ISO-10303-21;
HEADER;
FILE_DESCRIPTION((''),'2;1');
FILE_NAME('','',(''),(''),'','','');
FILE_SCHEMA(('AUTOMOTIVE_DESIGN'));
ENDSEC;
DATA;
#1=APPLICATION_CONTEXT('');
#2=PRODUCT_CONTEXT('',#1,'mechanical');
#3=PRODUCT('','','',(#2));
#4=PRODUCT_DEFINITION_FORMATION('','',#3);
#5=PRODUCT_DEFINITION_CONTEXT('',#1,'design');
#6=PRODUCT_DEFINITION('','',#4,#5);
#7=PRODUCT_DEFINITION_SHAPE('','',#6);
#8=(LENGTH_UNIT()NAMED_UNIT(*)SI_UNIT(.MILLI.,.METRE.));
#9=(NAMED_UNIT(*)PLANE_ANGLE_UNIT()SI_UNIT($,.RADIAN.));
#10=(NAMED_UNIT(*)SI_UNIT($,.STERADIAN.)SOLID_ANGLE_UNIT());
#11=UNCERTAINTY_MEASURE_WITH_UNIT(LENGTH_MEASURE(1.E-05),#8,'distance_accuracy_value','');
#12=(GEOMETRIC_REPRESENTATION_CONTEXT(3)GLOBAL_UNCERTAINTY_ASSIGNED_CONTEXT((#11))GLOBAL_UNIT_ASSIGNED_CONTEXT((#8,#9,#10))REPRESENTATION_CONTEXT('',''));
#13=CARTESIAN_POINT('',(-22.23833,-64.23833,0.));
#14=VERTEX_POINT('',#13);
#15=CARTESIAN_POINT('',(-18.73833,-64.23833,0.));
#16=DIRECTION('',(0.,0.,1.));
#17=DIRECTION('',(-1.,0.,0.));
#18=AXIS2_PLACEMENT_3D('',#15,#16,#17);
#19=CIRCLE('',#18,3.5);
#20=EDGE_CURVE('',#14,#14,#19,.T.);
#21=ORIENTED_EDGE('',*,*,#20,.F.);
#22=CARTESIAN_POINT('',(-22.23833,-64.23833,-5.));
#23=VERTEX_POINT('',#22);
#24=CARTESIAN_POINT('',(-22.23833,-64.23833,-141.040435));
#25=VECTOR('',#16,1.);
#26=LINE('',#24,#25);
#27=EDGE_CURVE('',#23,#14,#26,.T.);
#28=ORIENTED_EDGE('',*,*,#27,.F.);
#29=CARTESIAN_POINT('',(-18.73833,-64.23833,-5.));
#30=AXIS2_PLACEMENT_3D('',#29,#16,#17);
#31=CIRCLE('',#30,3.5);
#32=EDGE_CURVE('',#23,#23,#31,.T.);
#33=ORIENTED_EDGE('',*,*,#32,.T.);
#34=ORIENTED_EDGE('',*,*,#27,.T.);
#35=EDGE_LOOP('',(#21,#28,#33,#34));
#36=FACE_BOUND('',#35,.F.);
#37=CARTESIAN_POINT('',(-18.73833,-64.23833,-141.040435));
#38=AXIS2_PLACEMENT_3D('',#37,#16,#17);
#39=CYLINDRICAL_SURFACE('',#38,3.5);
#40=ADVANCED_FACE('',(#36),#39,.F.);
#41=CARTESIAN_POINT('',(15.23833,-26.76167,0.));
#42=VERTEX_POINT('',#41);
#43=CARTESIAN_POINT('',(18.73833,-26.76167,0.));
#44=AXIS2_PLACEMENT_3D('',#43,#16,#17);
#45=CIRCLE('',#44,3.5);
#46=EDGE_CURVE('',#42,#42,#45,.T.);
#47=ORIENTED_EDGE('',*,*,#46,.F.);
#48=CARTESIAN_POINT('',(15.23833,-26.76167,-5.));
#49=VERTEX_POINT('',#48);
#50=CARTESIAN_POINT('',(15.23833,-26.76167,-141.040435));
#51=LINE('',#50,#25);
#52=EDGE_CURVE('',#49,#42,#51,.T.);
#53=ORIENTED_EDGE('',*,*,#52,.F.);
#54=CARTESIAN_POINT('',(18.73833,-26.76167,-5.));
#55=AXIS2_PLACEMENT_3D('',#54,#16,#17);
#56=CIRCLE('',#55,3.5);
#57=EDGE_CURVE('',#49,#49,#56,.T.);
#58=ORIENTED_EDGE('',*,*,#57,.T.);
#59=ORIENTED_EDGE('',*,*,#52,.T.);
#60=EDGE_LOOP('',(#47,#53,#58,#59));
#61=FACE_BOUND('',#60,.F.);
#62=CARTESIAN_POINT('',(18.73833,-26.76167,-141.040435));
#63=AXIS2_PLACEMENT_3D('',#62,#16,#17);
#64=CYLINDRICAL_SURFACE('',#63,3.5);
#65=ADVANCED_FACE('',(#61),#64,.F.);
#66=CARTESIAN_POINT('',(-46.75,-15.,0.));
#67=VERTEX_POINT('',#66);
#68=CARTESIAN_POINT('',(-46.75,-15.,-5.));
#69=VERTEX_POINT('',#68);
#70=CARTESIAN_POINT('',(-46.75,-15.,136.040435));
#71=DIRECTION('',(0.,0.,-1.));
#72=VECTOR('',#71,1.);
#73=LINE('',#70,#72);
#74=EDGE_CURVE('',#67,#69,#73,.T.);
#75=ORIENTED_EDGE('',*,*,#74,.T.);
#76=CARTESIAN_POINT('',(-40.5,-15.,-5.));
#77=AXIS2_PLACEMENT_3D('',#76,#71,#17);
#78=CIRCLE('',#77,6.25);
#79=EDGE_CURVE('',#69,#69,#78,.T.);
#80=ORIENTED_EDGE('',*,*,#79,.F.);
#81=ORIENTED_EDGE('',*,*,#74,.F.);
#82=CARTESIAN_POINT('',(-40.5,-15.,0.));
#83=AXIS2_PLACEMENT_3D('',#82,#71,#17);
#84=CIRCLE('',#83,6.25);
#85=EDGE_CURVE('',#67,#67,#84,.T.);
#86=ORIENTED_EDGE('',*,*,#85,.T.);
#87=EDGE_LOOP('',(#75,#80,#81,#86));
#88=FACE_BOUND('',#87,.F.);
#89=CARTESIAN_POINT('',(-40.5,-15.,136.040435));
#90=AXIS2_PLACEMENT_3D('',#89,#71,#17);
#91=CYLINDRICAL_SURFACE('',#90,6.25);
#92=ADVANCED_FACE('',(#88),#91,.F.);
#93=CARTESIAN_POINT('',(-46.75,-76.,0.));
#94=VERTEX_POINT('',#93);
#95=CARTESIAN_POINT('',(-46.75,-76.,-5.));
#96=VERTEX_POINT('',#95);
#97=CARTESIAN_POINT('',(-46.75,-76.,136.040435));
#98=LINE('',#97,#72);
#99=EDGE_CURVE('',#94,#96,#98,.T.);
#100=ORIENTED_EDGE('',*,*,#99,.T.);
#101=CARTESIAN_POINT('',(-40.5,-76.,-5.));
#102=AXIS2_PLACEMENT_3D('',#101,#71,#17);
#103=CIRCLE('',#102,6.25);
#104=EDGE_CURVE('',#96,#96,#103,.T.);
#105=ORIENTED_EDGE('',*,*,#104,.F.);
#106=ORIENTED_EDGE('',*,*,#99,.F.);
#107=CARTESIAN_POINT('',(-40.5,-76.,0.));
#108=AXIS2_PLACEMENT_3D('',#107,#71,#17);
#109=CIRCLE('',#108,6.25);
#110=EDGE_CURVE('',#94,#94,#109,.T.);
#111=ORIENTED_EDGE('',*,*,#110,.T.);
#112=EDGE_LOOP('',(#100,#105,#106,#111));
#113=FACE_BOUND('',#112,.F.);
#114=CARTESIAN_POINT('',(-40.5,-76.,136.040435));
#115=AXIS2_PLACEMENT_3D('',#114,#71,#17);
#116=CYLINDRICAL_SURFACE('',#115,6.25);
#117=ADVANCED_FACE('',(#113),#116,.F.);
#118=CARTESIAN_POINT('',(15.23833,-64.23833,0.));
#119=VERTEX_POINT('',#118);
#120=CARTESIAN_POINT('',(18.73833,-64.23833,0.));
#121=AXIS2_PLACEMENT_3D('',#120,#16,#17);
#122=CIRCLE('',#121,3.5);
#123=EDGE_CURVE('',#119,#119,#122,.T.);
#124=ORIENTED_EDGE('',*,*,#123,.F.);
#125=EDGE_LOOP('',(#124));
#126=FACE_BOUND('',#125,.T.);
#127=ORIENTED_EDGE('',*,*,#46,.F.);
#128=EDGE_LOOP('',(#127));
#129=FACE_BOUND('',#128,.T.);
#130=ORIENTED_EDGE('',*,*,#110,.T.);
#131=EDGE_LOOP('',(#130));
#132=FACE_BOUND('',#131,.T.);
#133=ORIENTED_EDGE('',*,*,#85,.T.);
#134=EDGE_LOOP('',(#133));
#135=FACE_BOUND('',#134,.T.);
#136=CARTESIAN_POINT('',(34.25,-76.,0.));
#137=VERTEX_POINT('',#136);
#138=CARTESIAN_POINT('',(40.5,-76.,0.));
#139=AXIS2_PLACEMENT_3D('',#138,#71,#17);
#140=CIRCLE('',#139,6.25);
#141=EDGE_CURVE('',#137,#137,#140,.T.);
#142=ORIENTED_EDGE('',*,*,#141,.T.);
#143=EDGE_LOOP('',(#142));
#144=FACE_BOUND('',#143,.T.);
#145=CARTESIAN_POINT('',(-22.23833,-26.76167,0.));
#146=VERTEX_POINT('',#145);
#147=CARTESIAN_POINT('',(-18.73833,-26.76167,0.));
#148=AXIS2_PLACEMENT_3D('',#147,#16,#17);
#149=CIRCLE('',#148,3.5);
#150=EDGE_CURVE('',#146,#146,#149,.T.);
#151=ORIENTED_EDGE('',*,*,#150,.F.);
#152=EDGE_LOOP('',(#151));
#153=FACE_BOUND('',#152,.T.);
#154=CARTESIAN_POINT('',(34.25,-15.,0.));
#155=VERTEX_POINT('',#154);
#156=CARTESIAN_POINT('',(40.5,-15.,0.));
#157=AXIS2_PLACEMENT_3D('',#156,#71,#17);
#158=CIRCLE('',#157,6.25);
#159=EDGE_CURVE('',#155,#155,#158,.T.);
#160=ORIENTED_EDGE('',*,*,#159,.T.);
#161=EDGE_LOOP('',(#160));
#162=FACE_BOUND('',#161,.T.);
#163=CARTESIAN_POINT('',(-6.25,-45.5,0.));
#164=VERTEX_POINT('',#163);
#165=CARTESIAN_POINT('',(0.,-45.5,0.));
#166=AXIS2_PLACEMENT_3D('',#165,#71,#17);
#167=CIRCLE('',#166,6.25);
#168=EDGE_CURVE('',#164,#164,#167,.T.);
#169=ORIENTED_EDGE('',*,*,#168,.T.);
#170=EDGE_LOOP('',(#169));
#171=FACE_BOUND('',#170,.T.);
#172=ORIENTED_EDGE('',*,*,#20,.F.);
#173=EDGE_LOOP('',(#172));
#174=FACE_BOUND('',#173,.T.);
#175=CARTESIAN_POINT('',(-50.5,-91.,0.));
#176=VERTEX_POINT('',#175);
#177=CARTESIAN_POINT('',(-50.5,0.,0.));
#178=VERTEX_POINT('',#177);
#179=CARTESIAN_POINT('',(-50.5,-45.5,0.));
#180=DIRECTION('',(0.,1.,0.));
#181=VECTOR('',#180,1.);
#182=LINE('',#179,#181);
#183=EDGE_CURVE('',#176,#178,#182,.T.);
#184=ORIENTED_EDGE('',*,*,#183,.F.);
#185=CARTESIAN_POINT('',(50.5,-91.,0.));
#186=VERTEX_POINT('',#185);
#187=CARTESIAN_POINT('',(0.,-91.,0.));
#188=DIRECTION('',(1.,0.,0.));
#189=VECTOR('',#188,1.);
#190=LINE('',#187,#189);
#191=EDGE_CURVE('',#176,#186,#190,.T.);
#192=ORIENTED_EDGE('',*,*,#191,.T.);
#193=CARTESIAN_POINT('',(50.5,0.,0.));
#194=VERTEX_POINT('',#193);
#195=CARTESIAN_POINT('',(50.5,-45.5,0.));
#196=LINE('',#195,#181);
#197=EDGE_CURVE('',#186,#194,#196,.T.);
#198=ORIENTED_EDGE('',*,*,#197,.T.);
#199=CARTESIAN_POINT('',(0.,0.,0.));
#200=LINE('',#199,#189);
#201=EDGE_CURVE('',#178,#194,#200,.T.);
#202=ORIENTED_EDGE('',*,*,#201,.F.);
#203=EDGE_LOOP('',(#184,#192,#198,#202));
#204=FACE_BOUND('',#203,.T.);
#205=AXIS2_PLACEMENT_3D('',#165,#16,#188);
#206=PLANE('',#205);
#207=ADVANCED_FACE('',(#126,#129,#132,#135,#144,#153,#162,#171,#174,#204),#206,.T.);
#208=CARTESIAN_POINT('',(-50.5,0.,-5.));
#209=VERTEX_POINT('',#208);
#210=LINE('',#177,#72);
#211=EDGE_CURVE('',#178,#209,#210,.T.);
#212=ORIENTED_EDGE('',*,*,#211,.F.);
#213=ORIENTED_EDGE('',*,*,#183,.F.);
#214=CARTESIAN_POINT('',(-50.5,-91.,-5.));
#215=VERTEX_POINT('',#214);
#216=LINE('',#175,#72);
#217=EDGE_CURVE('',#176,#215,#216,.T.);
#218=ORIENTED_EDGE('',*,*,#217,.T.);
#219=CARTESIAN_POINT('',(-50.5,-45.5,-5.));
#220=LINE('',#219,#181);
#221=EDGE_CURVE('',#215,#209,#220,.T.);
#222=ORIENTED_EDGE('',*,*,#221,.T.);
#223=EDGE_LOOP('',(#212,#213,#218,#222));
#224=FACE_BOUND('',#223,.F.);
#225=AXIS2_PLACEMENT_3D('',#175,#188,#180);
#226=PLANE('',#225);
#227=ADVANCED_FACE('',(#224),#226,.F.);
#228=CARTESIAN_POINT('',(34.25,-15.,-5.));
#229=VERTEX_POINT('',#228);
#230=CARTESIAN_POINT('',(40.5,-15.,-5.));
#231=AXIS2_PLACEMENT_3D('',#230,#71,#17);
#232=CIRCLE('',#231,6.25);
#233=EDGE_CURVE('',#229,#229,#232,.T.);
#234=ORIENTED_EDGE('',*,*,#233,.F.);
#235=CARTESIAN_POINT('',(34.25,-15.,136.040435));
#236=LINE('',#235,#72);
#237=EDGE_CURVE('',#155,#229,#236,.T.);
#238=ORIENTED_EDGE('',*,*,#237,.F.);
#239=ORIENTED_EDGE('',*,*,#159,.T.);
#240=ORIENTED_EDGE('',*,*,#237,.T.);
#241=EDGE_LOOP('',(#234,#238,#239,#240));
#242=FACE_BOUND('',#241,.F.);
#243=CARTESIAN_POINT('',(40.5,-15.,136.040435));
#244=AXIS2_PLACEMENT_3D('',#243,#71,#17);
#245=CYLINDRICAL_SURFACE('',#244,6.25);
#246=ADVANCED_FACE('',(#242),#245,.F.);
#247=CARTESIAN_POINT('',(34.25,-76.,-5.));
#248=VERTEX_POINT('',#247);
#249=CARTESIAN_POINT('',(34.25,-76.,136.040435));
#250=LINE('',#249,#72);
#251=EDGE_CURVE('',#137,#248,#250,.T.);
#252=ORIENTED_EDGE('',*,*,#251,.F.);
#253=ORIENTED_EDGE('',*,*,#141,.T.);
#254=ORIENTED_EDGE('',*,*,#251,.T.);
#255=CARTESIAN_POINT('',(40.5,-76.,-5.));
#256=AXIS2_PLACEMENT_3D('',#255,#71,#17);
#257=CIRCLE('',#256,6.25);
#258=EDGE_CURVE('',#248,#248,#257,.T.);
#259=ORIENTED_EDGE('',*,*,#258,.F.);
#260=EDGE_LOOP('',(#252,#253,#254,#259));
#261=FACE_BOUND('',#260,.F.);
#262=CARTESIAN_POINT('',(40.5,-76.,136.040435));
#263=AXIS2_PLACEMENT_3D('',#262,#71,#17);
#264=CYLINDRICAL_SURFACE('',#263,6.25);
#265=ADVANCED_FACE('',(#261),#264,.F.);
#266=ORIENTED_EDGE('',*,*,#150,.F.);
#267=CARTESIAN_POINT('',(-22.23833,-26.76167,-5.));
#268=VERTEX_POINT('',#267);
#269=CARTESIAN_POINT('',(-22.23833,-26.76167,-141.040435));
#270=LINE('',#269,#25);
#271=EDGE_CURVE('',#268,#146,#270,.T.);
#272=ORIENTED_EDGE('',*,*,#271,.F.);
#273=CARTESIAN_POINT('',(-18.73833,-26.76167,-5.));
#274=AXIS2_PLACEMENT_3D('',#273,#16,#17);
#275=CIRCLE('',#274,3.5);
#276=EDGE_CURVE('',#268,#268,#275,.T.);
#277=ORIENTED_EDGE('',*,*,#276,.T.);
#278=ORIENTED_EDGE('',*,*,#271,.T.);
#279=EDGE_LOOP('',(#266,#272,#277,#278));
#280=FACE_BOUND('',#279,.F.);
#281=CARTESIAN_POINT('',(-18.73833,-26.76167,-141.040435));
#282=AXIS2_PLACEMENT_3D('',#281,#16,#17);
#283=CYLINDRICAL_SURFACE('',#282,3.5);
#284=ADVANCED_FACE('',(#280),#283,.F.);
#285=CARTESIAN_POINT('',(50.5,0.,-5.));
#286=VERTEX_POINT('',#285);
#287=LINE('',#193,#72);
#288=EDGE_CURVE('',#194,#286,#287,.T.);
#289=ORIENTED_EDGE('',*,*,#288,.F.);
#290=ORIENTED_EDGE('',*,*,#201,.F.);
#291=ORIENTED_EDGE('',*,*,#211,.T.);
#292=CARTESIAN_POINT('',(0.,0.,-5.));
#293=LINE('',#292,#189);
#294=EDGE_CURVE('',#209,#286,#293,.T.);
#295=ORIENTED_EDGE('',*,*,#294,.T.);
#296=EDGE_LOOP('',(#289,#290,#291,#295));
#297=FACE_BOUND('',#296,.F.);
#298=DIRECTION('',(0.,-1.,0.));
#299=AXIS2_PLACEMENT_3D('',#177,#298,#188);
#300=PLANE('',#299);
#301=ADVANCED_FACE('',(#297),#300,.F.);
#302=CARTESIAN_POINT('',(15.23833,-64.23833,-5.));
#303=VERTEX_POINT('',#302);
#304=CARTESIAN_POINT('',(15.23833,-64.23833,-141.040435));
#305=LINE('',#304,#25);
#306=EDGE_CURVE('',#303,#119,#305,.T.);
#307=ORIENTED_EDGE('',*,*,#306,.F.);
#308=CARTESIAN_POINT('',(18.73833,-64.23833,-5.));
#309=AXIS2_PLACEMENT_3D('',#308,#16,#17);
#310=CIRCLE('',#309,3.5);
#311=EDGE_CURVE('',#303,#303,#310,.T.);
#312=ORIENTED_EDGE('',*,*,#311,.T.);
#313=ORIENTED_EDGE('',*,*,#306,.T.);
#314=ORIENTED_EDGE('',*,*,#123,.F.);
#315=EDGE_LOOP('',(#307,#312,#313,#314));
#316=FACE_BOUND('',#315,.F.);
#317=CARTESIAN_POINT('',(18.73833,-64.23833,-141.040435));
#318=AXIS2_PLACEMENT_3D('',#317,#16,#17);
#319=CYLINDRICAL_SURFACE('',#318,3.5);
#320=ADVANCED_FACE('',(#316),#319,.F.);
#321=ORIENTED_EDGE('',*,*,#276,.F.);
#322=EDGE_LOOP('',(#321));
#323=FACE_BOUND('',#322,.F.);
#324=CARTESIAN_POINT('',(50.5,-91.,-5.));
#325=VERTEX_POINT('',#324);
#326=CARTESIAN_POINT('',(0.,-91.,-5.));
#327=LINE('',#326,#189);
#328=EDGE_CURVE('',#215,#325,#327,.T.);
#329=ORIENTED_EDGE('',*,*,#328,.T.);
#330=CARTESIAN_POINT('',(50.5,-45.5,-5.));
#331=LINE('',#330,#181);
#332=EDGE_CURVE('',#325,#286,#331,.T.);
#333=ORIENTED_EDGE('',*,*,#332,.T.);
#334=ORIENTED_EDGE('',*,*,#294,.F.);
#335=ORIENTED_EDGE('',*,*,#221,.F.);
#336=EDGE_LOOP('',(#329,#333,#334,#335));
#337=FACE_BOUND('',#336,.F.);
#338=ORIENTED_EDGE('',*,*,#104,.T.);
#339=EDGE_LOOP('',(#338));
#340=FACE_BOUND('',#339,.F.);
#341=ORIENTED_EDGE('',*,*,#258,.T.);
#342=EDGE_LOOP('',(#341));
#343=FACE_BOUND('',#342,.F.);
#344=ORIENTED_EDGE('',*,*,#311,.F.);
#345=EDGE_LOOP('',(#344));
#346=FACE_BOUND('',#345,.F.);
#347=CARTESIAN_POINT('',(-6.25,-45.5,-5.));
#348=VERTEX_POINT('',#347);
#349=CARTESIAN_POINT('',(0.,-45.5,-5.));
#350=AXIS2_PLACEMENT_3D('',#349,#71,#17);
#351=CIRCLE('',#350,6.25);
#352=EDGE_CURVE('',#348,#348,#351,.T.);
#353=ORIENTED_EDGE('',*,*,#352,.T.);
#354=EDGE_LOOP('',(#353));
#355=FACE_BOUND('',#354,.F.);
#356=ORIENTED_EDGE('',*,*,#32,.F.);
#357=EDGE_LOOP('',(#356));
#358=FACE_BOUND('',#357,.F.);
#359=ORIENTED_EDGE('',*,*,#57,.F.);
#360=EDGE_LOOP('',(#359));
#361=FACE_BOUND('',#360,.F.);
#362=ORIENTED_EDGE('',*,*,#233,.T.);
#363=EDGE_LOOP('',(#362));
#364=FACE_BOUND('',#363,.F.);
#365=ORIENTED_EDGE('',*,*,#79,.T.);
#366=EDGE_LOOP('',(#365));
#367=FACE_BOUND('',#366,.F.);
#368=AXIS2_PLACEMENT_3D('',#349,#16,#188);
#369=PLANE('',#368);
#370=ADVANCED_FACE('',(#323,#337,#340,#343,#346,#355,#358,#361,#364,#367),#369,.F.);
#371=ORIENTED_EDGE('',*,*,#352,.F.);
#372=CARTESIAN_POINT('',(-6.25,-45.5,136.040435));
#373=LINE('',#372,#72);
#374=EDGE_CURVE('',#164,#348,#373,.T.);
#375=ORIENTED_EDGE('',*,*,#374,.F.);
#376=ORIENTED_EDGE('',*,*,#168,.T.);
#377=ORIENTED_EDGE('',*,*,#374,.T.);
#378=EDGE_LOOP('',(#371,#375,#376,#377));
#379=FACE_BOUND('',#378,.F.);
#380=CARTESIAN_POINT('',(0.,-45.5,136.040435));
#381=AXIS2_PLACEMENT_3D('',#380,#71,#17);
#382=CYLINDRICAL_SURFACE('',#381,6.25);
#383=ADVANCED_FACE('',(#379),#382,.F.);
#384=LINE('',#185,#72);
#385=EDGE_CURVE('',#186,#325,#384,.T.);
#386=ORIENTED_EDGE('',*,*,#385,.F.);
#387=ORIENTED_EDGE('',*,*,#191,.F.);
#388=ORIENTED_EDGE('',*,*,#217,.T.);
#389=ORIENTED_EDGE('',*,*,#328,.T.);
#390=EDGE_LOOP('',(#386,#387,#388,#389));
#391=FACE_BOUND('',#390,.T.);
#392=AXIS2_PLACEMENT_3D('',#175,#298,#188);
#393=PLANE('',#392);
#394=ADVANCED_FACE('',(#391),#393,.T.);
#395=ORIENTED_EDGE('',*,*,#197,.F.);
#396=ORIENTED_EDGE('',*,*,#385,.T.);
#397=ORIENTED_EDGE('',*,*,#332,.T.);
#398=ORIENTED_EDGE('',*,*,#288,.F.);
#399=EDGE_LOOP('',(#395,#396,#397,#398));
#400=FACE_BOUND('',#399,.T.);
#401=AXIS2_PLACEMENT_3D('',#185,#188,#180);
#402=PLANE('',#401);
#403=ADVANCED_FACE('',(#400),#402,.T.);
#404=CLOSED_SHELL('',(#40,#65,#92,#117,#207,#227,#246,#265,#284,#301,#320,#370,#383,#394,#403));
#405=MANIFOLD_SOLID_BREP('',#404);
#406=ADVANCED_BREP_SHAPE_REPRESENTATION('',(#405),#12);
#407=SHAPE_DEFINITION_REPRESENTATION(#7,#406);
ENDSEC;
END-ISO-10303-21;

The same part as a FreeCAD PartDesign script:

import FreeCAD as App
import Part
import Sketcher

V = App.Vector

doc = App.newDocument("Part")
body = doc.addObject("PartDesign::Body", "Body")

# Sketch on XY plane
sketch1 = body.newObject("Sketcher::SketchObject", "Sketch")
sketch1.AttachmentSupport = (doc.getObject("XY_Plane"), [""])
sketch1.MapMode = "FlatFace"
sketch1.addGeometry(Part.LineSegment(V(-50, 0, 0), V(-50, -91, 0)), False)
sketch1.addGeometry(Part.LineSegment(V(-50, -91, 0), V(50, -91, 0)), False)
sketch1.addGeometry(Part.LineSegment(V(50, -91, 0), V(50, 0, 0)), False)
sketch1.addGeometry(Part.LineSegment(V(50, 0, 0), V(-50, 0, 0)), False)
sketch1.addConstraint(Sketcher.Constraint("Coincident", 0, 2, 1, 1))
sketch1.addConstraint(Sketcher.Constraint("Coincident", 1, 2, 2, 1))
sketch1.addConstraint(Sketcher.Constraint("Coincident", 2, 2, 3, 1))
sketch1.addConstraint(Sketcher.Constraint("Coincident", 3, 2, 0, 1))
sketch1.addConstraint(Sketcher.Constraint("Vertical", 0))
sketch1.addConstraint(Sketcher.Constraint("Horizontal", 1))
sketch1.addConstraint(Sketcher.Constraint("Vertical", 2))
sketch1.addConstraint(Sketcher.Constraint("Horizontal", 3))
sketch1.addConstraint(Sketcher.Constraint("Symmetric", 2, 2, 3, 2, -1, 1))
sketch1.addConstraint(Sketcher.Constraint("DistanceX", 1, 1, 1, 2, 101.0))
sketch1.addConstraint(Sketcher.Constraint("DistanceY", 0, 2, 0, 1, 91.0))
pad1 = body.newObject("PartDesign::Pad", "Pad")
pad1.Profile = sketch1
pad1.Length = 5
pad1.Reversed = True

# Sketch on XY plane
sketch2 = body.newObject("Sketcher::SketchObject", "Sketch001")
sketch2.AttachmentSupport = (doc.getObject("XY_Plane"), [""])
sketch2.MapMode = "FlatFace"
sketch2.addGeometry(Part.Circle(V(-40, -76, 0), V(0, 0, 1), 6), False)
sketch2.addGeometry(Part.Circle(V(40, -76, 0), V(0, 0, 1), 6), False)
sketch2.addGeometry(Part.Circle(V(40, -15, 0), V(0, 0, 1), 6), False)
sketch2.addGeometry(Part.Circle(V(-40, -15, 0), V(0, 0, 1), 6), False)
sketch2.addGeometry(Part.Circle(V(0, -46, 0), V(0, 0, 1), 6), False)
sketch2.addConstraint(Sketcher.Constraint("Equal", 0, 1))
sketch2.addConstraint(Sketcher.Constraint("Equal", 1, 2))
sketch2.addConstraint(Sketcher.Constraint("Equal", 2, 3))
sketch2.addConstraint(Sketcher.Constraint("Equal", 3, 4))
sketch2.addConstraint(Sketcher.Constraint("Symmetric", 0, 3, 1, 3, -2))
sketch2.addConstraint(Sketcher.Constraint("Symmetric", 2, 3, 3, 3, -2))
sketch2.addConstraint(Sketcher.Constraint("PointOnObject", 4, 3, -2))
sketch2.addConstraint(Sketcher.Constraint("Vertical", 1, 3, 2, 3))
sketch2.addConstraint(Sketcher.Constraint("Diameter", 0, 12.5))
sketch2.addConstraint(Sketcher.Constraint("DistanceY", 0, 3, -1, 1, 76.0))
sketch2.addConstraint(Sketcher.Constraint("DistanceY", 2, 3, -1, 1, 15.0))
sketch2.addConstraint(Sketcher.Constraint("DistanceX", 0, 3, 1, 3, 81.0))
sketch2.addConstraint(Sketcher.Constraint("DistanceY", 4, 3, -1, 1, 45.5))
doc.recompute()
hole = body.newObject("PartDesign::Hole", "Hole")
hole.Profile = sketch2
hole.ThreadType = "None"
hole.Diameter = 12.5
hole.DepthType = "ThroughAll"

# Sketch on XY plane
sketch3 = body.newObject("Sketcher::SketchObject", "Sketch002")
sketch3.AttachmentSupport = (doc.getObject("XY_Plane"), [""])
sketch3.MapMode = "FlatFace"
sketch3.AttachmentOffset = App.Placement(V(0, 0, -5), App.Rotation())
sketch3.addGeometry(Part.Circle(V(-18.7, -64.2, 0), V(0, 0, 1), 3.5), False)
sketch3.addGeometry(Part.Circle(V(-18.7, -26.8, 0), V(0, 0, 1), 3.5), False)
sketch3.addGeometry(Part.Circle(V(18.7, -26.8, 0), V(0, 0, 1), 3.5), False)
sketch3.addGeometry(Part.Circle(V(18.7, -64.2, 0), V(0, 0, 1), 3.5), False)
sketch3.addConstraint(Sketcher.Constraint("Equal", 0, 1))
sketch3.addConstraint(Sketcher.Constraint("Equal", 1, 2))
sketch3.addConstraint(Sketcher.Constraint("Equal", 2, 3))
sketch3.addConstraint(Sketcher.Constraint("Symmetric", 1, 3, 2, 3, -2))
sketch3.addConstraint(Sketcher.Constraint("Symmetric", 0, 3, 3, 3, -2))
sketch3.addConstraint(Sketcher.Constraint("Vertical", 0, 3, 1, 3))
sketch3.addConstraint(Sketcher.Constraint("Diameter", 0, 7.0))
sketch3.addConstraint(Sketcher.Constraint("DistanceX", 0, 3, -1, 1, 18.73833))
sketch3.addConstraint(Sketcher.Constraint("DistanceY", 0, 3, -1, 1, 64.23833))
sketch3.addConstraint(Sketcher.Constraint("DistanceY", 1, 3, -1, 1, 26.76167))
doc.recompute()
hole2 = body.newObject("PartDesign::Hole", "Hole001")
hole2.Profile = sketch3
hole2.ThreadType = "None"
hole2.Diameter = 7
hole2.DepthType = "ThroughAll"
hole2.Reversed = True

doc.recompute()
